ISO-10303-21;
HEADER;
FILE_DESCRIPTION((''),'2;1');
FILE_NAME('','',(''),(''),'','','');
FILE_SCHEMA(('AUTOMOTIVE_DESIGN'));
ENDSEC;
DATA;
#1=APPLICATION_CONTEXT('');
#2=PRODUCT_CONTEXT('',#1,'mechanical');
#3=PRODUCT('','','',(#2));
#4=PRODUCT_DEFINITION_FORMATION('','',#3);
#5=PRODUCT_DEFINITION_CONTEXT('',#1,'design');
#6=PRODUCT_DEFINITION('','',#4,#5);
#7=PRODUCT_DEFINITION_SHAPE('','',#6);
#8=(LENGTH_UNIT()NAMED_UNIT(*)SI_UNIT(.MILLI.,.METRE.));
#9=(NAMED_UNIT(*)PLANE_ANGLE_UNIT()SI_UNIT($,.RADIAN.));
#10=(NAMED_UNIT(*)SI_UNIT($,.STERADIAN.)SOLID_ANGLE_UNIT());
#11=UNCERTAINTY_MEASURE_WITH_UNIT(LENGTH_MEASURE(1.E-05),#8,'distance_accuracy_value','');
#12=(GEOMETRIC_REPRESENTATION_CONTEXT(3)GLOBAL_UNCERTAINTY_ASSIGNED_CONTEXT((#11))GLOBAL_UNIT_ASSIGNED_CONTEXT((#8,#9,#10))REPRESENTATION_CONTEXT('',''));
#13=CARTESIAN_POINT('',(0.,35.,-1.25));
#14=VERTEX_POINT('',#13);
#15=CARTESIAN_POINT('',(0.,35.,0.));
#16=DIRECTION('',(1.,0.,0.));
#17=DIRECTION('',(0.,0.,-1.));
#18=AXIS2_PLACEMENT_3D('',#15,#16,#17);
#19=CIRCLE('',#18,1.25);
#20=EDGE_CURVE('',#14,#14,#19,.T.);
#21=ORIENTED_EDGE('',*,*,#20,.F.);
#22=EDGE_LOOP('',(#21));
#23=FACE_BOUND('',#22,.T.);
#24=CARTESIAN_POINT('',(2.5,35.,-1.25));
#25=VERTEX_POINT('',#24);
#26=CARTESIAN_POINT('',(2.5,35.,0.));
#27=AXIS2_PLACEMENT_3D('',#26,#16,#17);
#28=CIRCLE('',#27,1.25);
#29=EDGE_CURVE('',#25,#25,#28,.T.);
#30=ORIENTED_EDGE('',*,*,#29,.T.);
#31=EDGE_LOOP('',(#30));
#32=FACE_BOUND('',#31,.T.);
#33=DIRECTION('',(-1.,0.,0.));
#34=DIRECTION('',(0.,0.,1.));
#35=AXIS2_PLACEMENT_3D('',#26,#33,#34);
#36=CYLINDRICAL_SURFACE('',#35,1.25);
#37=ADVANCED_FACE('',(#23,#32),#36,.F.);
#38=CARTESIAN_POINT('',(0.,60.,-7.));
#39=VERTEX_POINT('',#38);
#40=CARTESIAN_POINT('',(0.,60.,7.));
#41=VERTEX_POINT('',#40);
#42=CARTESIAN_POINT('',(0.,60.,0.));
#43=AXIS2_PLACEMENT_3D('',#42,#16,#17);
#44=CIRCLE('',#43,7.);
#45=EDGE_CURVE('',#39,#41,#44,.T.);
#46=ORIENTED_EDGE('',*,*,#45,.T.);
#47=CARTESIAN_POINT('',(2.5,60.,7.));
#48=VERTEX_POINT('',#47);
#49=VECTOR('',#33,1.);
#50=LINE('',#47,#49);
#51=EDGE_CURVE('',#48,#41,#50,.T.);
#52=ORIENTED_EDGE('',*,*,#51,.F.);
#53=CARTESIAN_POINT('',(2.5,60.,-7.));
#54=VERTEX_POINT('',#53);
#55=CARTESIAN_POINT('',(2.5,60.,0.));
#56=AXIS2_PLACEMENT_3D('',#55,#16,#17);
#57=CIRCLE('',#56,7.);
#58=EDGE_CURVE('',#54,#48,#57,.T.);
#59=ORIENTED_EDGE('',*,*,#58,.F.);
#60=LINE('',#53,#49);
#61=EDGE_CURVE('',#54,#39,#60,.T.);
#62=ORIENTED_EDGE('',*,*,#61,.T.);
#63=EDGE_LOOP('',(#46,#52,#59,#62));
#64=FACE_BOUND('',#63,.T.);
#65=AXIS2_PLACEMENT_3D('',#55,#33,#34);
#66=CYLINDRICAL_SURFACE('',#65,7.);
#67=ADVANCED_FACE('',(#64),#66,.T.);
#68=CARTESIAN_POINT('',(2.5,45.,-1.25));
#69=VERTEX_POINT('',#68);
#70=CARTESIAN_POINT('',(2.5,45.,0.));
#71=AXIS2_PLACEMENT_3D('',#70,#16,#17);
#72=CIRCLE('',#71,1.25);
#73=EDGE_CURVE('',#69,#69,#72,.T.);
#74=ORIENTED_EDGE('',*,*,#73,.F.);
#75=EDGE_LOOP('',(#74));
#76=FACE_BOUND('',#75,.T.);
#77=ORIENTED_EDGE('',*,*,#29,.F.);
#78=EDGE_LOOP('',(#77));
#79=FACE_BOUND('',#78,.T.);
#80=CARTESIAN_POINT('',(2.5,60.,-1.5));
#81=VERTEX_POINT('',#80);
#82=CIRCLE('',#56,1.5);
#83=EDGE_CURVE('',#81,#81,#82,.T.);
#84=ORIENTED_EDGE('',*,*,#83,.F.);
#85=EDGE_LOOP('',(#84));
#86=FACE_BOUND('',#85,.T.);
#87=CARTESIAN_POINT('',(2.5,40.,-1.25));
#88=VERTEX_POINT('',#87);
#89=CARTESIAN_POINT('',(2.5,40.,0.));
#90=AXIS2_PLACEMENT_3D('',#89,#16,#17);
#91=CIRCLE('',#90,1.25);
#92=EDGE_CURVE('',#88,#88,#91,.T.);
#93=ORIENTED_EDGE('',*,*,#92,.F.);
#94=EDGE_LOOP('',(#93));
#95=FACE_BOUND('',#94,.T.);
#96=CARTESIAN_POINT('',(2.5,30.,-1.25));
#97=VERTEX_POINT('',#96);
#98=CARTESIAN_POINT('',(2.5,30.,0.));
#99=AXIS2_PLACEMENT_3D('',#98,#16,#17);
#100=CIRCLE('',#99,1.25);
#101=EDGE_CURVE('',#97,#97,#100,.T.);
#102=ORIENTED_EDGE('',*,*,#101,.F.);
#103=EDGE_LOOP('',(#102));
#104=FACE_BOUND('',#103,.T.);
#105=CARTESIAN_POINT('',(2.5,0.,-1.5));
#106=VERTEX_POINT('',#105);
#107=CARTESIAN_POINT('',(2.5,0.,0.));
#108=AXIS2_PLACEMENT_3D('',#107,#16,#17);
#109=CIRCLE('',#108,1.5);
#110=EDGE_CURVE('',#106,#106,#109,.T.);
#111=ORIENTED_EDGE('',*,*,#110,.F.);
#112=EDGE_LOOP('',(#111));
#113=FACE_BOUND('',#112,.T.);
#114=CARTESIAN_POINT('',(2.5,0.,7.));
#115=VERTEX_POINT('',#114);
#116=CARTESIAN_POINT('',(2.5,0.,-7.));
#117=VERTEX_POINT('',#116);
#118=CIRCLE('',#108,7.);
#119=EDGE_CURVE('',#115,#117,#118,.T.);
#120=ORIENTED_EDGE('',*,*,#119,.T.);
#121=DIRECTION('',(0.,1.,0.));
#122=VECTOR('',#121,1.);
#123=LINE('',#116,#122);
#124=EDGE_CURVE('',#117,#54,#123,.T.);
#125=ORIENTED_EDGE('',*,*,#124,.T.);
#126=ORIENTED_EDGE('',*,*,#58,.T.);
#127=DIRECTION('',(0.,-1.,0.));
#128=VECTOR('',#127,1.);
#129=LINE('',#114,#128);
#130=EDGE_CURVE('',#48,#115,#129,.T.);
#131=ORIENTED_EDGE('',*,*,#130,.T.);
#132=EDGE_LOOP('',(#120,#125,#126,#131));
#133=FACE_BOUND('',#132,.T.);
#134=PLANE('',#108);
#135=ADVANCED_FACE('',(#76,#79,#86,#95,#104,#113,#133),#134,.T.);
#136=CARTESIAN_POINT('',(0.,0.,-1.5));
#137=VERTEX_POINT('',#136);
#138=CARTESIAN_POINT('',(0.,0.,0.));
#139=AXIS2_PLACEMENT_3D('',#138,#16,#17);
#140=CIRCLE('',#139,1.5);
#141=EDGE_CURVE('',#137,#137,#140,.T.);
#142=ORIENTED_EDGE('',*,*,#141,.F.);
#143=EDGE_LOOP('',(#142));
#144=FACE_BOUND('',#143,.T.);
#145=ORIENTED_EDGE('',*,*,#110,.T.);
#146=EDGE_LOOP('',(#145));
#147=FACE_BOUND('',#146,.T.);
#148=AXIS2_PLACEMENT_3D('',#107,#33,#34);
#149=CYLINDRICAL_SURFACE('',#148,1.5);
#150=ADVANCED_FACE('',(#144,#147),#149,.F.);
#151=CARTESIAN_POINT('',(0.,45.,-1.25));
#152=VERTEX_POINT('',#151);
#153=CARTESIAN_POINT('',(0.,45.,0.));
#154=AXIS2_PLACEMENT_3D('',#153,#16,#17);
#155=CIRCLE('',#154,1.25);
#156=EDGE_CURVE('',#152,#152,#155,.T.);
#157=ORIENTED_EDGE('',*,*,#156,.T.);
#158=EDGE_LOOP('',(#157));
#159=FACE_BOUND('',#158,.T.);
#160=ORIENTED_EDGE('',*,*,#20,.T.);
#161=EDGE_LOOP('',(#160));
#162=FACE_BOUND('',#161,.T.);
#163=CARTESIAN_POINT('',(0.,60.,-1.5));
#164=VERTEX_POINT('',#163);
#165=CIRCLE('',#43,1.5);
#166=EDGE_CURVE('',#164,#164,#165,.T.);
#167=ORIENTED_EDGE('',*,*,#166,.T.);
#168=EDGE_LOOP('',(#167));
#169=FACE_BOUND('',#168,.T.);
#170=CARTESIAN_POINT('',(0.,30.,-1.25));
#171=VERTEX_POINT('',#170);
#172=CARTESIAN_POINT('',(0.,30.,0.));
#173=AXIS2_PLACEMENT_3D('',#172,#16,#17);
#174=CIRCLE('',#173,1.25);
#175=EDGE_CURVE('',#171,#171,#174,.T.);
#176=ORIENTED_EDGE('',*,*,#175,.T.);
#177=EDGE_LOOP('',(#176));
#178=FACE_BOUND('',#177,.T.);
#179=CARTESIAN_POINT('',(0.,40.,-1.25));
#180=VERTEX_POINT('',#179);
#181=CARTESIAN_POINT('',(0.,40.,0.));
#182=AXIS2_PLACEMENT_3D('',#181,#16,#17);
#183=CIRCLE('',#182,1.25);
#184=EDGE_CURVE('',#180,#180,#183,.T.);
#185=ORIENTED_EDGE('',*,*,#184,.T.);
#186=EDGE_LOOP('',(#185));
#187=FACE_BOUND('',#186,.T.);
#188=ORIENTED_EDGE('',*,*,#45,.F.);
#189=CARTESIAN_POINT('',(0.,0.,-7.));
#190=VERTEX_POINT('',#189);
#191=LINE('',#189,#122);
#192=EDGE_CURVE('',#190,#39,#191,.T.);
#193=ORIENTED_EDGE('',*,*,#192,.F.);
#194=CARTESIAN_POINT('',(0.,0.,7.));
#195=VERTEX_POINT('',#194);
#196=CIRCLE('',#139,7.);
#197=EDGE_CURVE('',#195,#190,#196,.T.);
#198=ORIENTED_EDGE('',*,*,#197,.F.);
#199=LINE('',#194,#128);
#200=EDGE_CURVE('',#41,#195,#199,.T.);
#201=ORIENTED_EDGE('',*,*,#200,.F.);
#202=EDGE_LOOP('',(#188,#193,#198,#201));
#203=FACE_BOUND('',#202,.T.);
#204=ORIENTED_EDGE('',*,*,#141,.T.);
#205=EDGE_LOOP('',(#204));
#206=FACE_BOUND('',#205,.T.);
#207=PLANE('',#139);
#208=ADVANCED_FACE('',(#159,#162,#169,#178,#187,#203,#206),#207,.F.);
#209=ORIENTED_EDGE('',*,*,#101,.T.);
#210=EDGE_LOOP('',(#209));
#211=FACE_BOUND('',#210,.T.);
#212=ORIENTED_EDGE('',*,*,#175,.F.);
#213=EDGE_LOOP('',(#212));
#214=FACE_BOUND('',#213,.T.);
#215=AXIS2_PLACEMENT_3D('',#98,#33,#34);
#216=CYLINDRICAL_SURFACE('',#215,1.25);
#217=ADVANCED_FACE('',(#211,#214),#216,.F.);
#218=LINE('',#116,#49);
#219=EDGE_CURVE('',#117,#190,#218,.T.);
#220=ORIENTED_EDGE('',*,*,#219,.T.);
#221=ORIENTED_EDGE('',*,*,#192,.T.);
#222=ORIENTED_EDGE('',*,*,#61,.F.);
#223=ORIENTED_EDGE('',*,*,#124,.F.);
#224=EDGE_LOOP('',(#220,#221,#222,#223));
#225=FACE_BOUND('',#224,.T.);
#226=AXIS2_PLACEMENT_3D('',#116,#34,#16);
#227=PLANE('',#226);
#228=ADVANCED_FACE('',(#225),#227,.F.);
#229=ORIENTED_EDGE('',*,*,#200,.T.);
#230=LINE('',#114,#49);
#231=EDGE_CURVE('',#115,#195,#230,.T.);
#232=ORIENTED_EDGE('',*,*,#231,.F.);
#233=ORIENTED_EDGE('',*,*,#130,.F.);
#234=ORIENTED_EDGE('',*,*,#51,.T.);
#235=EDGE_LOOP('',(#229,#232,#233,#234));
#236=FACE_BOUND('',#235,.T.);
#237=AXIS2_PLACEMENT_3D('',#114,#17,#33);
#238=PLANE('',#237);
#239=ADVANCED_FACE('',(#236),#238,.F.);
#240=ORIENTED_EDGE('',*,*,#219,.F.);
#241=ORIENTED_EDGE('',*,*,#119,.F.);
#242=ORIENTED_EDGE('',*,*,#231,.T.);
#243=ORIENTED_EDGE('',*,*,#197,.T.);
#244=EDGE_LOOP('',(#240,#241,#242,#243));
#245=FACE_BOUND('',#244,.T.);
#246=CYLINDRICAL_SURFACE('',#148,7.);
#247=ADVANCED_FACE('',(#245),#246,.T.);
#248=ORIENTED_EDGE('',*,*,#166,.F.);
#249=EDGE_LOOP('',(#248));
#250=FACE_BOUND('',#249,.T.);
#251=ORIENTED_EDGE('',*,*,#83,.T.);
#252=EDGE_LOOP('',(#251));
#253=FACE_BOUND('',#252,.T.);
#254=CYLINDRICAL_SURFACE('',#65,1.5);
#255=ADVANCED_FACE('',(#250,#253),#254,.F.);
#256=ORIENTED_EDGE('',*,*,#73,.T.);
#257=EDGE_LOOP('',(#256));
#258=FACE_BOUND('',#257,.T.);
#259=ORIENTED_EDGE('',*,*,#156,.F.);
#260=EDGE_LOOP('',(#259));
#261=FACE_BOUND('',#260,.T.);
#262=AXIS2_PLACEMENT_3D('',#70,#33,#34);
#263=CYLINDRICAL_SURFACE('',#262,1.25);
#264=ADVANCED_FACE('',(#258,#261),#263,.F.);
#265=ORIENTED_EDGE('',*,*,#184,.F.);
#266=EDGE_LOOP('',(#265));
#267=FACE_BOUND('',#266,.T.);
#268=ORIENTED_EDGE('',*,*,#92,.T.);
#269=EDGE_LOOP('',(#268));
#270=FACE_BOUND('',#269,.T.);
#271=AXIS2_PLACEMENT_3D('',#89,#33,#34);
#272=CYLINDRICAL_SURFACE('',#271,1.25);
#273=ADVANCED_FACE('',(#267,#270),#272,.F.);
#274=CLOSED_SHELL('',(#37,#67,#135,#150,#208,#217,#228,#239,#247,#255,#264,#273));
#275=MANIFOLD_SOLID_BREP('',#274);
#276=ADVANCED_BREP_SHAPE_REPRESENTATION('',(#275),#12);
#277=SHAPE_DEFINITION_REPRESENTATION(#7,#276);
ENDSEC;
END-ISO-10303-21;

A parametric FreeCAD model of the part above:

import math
import FreeCAD as App
import Part
import Sketcher
from FreeCAD import Vector

doc = App.newDocument("Part")
params = doc.addObject("Spreadsheet::Sheet", "Params")
for row, (alias, value) in enumerate([
    ("sketch1_diameter", "3 mm"),
    ("sketch1_radius", "7 mm"),
    ("sketch1_diameter2", "2.5 mm"),
    ("sketch1_width", "60 mm"),
    ("pad1_length", "2.5 mm"),
], start=1):
    params.set(f"A{row}", alias)
    params.set(f"B{row}", "=" + value)
    params.setAlias(f"B{row}", alias)

body = doc.addObject("PartDesign::Body", "Body")

sketch1 = doc.addObject("Sketcher::SketchObject", "Sketch")
body.addObject(sketch1)
sketch1.AttachmentSupport = (doc.YZ_Plane, [""])
sketch1.MapMode = "FlatFace"
sketch1.addGeometry([
    Part.LineSegment(Vector(60, 7, 0), Vector(0, 7, 0)),
    Part.ArcOfCircle(Part.Circle(Vector(0, 0, 0), Vector(0, 0, 1), 7), math.radians(90), math.radians(270)),
    Part.LineSegment(Vector(0, -7, 0), Vector(60, -7, 0)),
    Part.ArcOfCircle(Part.Circle(Vector(60, 0, 0), Vector(0, 0, 1), 7), math.radians(-90), math.radians(90)),
    Part.Circle(Vector(0, 0, 0), Vector(0, 0, 1), 1.5),
    Part.Circle(Vector(30, 0, 0), Vector(0, 0, 1), 1.25),
    Part.Circle(Vector(35, 0, 0), Vector(0, 0, 1), 1.25),
    Part.Circle(Vector(40, 0, 0), Vector(0, 0, 1), 1.25),
    Part.Circle(Vector(45, 0, 0), Vector(0, 0, 1), 1.25),
    Part.Circle(Vector(60, 0, 0), Vector(0, 0, 1), 1.5),
], False)
sketch1.addConstraint([
    Sketcher.Constraint("Tangent", 0, 2, 1, 1),
    Sketcher.Constraint("Tangent", 1, 2, 2, 1),
    Sketcher.Constraint("Tangent", 2, 2, 3, 1),
    Sketcher.Constraint("Tangent", 3, 2, 0, 1),
    Sketcher.Constraint("Horizontal", 0),
    Sketcher.Constraint("Horizontal", 2),
    Sketcher.Constraint("Coincident", 1, 3, -1, 1),
    Sketcher.Constraint("Coincident", 4, 3, -1, 1),
    Sketcher.Constraint("Coincident", 9, 3, 3, 3),
    Sketcher.Constraint("Equal", 5, 6),
    Sketcher.Constraint("Equal", 6, 7),
    Sketcher.Constraint("Equal", 7, 8),
    Sketcher.Constraint("Equal", 4, 9),
    Sketcher.Constraint("PointOnObject", 5, 3, -1),
    Sketcher.Constraint("PointOnObject", 6, 3, -1),
    Sketcher.Constraint("PointOnObject", 7, 3, -1),
    Sketcher.Constraint("PointOnObject", 8, 3, -1),
    Sketcher.Constraint("Diameter", 4, 3.0),
    Sketcher.Constraint("Radius", 1, 7.0),
    Sketcher.Constraint("Diameter", 5, 2.5),
    Sketcher.Constraint("DistanceX", 0, 2, 0, 1, 60.0),
    Sketcher.Constraint("DistanceX", -1, 1, 5, 3, 30.0),
    Sketcher.Constraint("DistanceX", -1, 1, 6, 3, 35.0),
    Sketcher.Constraint("DistanceX", -1, 1, 7, 3, 40.0),
    Sketcher.Constraint("DistanceX", -1, 1, 8, 3, 45.0),
])
sketch1.setExpression("Constraints[17]", "Params.sketch1_diameter")
sketch1.setExpression("Constraints[18]", "Params.sketch1_radius")
sketch1.setExpression("Constraints[19]", "Params.sketch1_diameter2")
sketch1.setExpression("Constraints[20]", "Params.sketch1_width")
pad1 = doc.addObject("PartDesign::Pad", "Pad")
body.addObject(pad1)
pad1.Profile = sketch1
pad1.setExpression("Length", "Params.pad1_length")

doc.recompute()
